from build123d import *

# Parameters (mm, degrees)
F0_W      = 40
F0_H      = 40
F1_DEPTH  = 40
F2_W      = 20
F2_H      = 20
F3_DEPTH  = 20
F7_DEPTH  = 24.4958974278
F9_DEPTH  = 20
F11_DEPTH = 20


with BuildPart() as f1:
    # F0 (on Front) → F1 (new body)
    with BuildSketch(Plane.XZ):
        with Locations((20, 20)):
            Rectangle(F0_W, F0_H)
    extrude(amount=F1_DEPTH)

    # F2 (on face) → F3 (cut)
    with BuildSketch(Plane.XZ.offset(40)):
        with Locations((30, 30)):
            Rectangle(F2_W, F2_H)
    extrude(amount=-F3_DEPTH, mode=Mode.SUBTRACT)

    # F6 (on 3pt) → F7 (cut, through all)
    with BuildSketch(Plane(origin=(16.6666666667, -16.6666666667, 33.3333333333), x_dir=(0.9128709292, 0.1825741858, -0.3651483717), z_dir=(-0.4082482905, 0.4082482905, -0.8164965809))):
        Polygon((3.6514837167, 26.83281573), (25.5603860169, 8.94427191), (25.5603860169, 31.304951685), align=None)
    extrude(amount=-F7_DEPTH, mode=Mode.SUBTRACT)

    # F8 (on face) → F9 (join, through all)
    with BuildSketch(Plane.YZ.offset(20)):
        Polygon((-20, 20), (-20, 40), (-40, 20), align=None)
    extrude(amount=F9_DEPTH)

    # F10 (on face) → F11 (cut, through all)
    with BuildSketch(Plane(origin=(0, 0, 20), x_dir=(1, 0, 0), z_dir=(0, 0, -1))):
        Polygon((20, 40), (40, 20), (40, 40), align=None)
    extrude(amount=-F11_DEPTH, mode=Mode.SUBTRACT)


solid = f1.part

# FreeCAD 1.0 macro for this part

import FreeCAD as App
import Part
import Sketcher
Q = App.Units.Quantity

doc = App.newDocument("Part")
body = doc.addObject("PartDesign::Body", "Body")

# Sketch on XZ plane
sketch1 = body.newObject("Sketcher::SketchObject", "Sketch")
sketch1.AttachmentSupport = (doc.getObject("XZ_Plane"), [""])
sketch1.MapMode = "FlatFace"
sketch1.addGeometry(Part.LineSegment(App.Vector(0, 40, 0), App.Vector(0, 0, 0)), False)
sketch1.addGeometry(Part.LineSegment(App.Vector(0, 0, 0), App.Vector(40, 0, 0)), False)
sketch1.addGeometry(Part.LineSegment(App.Vector(40, 0, 0), App.Vector(40, 40, 0)), False)
sketch1.addGeometry(Part.LineSegment(App.Vector(40, 40, 0), App.Vector(0, 40, 0)), False)
sketch1.addConstraint(Sketcher.Constraint("Coincident", 0, 2, 1, 1))
sketch1.addConstraint(Sketcher.Constraint("Coincident", 1, 2, 2, 1))
sketch1.addConstraint(Sketcher.Constraint("Coincident", 2, 2, 3, 1))
sketch1.addConstraint(Sketcher.Constraint("Coincident", 3, 2, 0, 1))
sketch1.addConstraint(Sketcher.Constraint("Vertical", 0))
sketch1.addConstraint(Sketcher.Constraint("Horizontal", 1))
sketch1.addConstraint(Sketcher.Constraint("Vertical", 2))
sketch1.addConstraint(Sketcher.Constraint("Horizontal", 3))
sketch1.addConstraint(Sketcher.Constraint("Coincident", 0, 2, -1, 1))
sketch1.addConstraint(Sketcher.Constraint("Equal", 3, 0))
sketch1.addConstraint(Sketcher.Constraint("DistanceX", 1, 1, 1, 2, Q("40 mm")))
pad1 = body.newObject("PartDesign::Pad", "Pad")
pad1.Profile = sketch1
pad1.Length = 40

# Sketch on XZ plane
sketch2 = body.newObject("Sketcher::SketchObject", "Sketch001")
sketch2.AttachmentSupport = (doc.getObject("XZ_Plane"), [""])
sketch2.MapMode = "FlatFace"
sketch2.AttachmentOffset = App.Placement(App.Vector(0, 0, 40), App.Rotation())
sketch2.addGeometry(Part.LineSegment(App.Vector(20, 40, 0), App.Vector(20, 20, 0)), False)
sketch2.addGeometry(Part.LineSegment(App.Vector(20, 20, 0), App.Vector(40, 20, 0)), False)
sketch2.addGeometry(Part.LineSegment(App.Vector(40, 20, 0), App.Vector(40, 40, 0)), False)
sketch2.addGeometry(Part.LineSegment(App.Vector(40, 40, 0), App.Vector(20, 40, 0)), False)
sketch2.addConstraint(Sketcher.Constraint("Coincident", 0, 2, 1, 1))
sketch2.addConstraint(Sketcher.Constraint("Coincident", 1, 2, 2, 1))
sketch2.addConstraint(Sketcher.Constraint("Coincident", 2, 2, 3, 1))
sketch2.addConstraint(Sketcher.Constraint("Coincident", 3, 2, 0, 1))
sketch2.addConstraint(Sketcher.Constraint("Vertical", 0))
sketch2.addConstraint(Sketcher.Constraint("Horizontal", 1))
sketch2.addConstraint(Sketcher.Constraint("Vertical", 2))
sketch2.addConstraint(Sketcher.Constraint("Horizontal", 3))
sketch2.addConstraint(Sketcher.Constraint("Equal", 3, 0))
sketch2.addConstraint(Sketcher.Constraint("DistanceX", 1, 1, 1, 2, Q("20 mm")))
sketch2.addConstraint(Sketcher.Constraint("DistanceX", -1, 1, 0, 2, Q("20 mm")))
sketch2.addConstraint(Sketcher.Constraint("DistanceY", -1, 1, 0, 2, Q("20 mm")))
pocket1 = body.newObject("PartDesign::Pocket", "Pocket")
pocket1.Profile = sketch2
pocket1.Length = 20

# Sketch on an angled plane
sketch3 = body.newObject("Sketcher::SketchObject", "Sketch002")
sketch3.Placement = App.Placement(App.Vector(16.666667, -16.666667, 33.333333), App.Rotation(App.Vector(0.912870929, 0.182574186, -0.365148372), App.Vector(0, -0.894427191, -0.447213595), App.Vector(-0.40824829, 0.40824829, -0.816496581), "ZXY"))
sketch3.addGeometry(Part.LineSegment(App.Vector(4, 27, 0), App.Vector(26, 9, 0)), False)
sketch3.addGeometry(Part.LineSegment(App.Vector(26, 9, 0), App.Vector(26, 31, 0)), False)
sketch3.addGeometry(Part.LineSegment(App.Vector(26, 31, 0), App.Vector(4, 27, 0)), False)
sketch3.addConstraint(Sketcher.Constraint("Coincident", 0, 2, 1, 1))
sketch3.addConstraint(Sketcher.Constraint("Coincident", 1, 2, 2, 1))
sketch3.addConstraint(Sketcher.Constraint("Coincident", 2, 2, 0, 1))
sketch3.addConstraint(Sketcher.Constraint("Vertical", 1))
sketch3.addConstraint(Sketcher.Constraint("DistanceY", 1, 1, 1, 2, Q("22.36068 mm")))
sketch3.addConstraint(Sketcher.Constraint("Distance", 0, Q("28.284271 mm")))
sketch3.addConstraint(Sketcher.Constraint("Distance", 2, Q("22.36068 mm")))
sketch3.addConstraint(Sketcher.Constraint("DistanceY", -1, 1, 0, 2, Q("8.944272 mm")))
sketch3.addConstraint(Sketcher.Constraint("DistanceX", -1, 1, 0, 2, Q("25.560386 mm")))
pocket2 = body.newObject("PartDesign::Pocket", "Pocket001")
pocket2.Profile = sketch3
pocket2.Type = "ThroughAll"

# Sketch on YZ plane
sketch4 = body.newObject("Sketcher::SketchObject", "Sketch003")
sketch4.AttachmentSupport = (doc.getObject("YZ_Plane"), [""])
sketch4.MapMode = "FlatFace"
sketch4.AttachmentOffset = App.Placement(App.Vector(0, 0, 20), App.Rotation())
sketch4.addGeometry(Part.LineSegment(App.Vector(-20, 20, 0), App.Vector(-20, 40, 0)), False)
sketch4.addGeometry(Part.LineSegment(App.Vector(-20, 40, 0), App.Vector(-40, 20, 0)), False)
sketch4.addGeometry(Part.LineSegment(App.Vector(-40, 20, 0), App.Vector(-20, 20, 0)), False)
sketch4.addConstraint(Sketcher.Constraint("Coincident", 0, 2, 1, 1))
sketch4.addConstraint(Sketcher.Constraint("Coincident", 1, 2, 2, 1))
sketch4.addConstraint(Sketcher.Constraint("Coincident", 2, 2, 0, 1))
sketch4.addConstraint(Sketcher.Constraint("Vertical", 0))
sketch4.addConstraint(Sketcher.Constraint("Horizontal", 2))
sketch4.addConstraint(Sketcher.Constraint("Equal", 2, 0))
sketch4.addConstraint(Sketcher.Constraint("DistanceX", 2, 1, 2, 2, Q("20 mm")))
sketch4.addConstraint(Sketcher.Constraint("DistanceX", 0, 2, -1, 1, Q("20 mm")))
sketch4.addConstraint(Sketcher.Constraint("DistanceY", -1, 1, 0, 2, Q("40 mm")))
pad2 = body.newObject("PartDesign::Pad", "Pad001")
pad2.Profile = sketch4
pad2.Length = 20

# Sketch on XY plane
sketch5 = body.newObject("Sketcher::SketchObject", "Sketch004")
sketch5.AttachmentSupport = (doc.getObject("XY_Plane"), [""])
sketch5.MapMode = "FlatFace"
sketch5.AttachmentOffset = App.Placement(App.Vector(0, 0, 20), App.Rotation())
sketch5.addGeometry(Part.LineSegment(App.Vector(20, -40, 0), App.Vector(40, -20, 0)), False)
sketch5.addGeometry(Part.LineSegment(App.Vector(40, -20, 0), App.Vector(40, -40, 0)), False)
sketch5.addGeometry(Part.LineSegment(App.Vector(40, -40, 0), App.Vector(20, -40, 0)), False)
sketch5.addConstraint(Sketcher.Constraint("Coincident", 0, 2, 1, 1))
sketch5.addConstraint(Sketcher.Constraint("Coincident", 1, 2, 2, 1))
sketch5.addConstraint(Sketcher.Constraint("Coincident", 2, 2, 0, 1))
sketch5.addConstraint(Sketcher.Constraint("Vertical", 1))
sketch5.addConstraint(Sketcher.Constraint("Horizontal", 2))
sketch5.addConstraint(Sketcher.Constraint("Equal", 2, 1))
sketch5.addConstraint(Sketcher.Constraint("DistanceX", 2, 2, 2, 1, Q("20 mm")))
sketch5.addConstraint(Sketcher.Constraint("DistanceX", -1, 1, 0, 2, Q("40 mm")))
sketch5.addConstraint(Sketcher.Constraint("DistanceY", 0, 2, -1, 1, Q("20 mm")))
pocket3 = body.newObject("PartDesign::Pocket", "Pocket002")
pocket3.Profile = sketch5
pocket3.Type = "ThroughAll"
pocket3.Reversed = True

doc.recompute()
